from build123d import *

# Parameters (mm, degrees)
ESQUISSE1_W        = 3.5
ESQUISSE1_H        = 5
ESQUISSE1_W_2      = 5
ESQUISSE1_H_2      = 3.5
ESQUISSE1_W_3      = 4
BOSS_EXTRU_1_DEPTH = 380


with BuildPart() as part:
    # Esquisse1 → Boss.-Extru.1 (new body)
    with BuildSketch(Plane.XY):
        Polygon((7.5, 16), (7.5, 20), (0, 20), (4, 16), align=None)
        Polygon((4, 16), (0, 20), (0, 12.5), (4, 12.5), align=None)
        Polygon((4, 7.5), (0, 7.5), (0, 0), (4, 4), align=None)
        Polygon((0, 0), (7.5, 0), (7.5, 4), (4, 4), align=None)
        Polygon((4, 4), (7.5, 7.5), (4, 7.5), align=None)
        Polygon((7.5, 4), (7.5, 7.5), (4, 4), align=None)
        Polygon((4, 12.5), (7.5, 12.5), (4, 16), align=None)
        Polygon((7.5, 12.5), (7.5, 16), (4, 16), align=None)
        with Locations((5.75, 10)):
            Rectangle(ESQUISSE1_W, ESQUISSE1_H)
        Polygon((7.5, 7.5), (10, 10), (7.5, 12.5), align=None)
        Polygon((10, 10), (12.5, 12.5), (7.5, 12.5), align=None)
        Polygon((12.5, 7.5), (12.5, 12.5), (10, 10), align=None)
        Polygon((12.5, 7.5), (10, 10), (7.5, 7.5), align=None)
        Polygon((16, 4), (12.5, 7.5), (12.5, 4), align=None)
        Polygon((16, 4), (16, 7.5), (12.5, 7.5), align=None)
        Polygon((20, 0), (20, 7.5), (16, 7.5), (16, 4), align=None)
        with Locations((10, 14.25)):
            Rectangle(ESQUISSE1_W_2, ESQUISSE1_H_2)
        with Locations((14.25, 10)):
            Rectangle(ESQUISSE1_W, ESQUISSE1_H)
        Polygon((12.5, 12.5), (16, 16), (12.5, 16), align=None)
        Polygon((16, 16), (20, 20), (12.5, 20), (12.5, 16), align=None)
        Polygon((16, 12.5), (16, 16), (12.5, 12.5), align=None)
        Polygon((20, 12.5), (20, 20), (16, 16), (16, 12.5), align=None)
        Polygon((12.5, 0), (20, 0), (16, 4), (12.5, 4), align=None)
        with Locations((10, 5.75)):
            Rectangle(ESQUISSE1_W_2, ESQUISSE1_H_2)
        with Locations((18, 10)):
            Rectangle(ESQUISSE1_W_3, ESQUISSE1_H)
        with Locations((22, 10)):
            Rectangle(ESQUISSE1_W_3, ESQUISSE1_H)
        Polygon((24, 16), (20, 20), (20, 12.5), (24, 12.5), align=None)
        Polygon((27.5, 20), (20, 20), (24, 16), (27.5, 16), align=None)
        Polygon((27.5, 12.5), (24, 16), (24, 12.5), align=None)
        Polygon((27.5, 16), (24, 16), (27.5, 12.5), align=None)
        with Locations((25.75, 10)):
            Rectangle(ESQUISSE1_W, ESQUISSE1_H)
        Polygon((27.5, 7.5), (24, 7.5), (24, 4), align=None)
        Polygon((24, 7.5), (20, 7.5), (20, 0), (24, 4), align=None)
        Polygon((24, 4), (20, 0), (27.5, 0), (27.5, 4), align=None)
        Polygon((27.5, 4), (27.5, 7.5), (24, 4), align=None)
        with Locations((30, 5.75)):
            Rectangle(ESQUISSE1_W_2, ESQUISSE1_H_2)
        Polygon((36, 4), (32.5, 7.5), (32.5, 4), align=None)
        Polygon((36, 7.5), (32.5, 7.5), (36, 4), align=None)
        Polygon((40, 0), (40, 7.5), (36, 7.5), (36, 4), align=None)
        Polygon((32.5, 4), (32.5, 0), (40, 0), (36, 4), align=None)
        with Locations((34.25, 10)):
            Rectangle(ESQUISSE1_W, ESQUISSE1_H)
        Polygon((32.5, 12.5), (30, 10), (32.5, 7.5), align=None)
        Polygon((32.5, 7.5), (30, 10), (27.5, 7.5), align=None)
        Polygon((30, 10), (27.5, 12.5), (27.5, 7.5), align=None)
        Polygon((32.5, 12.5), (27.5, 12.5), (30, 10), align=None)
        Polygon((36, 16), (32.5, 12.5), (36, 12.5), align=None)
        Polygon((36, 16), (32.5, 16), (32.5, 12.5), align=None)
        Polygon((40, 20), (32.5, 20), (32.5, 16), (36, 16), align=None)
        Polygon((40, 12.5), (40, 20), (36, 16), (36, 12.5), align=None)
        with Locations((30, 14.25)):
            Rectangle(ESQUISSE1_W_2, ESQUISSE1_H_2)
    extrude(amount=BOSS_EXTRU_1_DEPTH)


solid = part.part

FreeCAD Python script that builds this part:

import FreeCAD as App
import Part
import Sketcher

V = App.Vector
Q = App.Units.Quantity


def add_polygon(sketch, points):
    """Adds a closed chain of lines whose ends are joined by coincident constraints."""
    first, n = sketch.GeometryCount, len(points)
    for a, b in zip(points, points[1:] + points[:1]):
        sketch.addGeometry(Part.LineSegment(App.Vector(*a, 0), App.Vector(*b, 0)), False)
    for i in range(n):
        sketch.addConstraint(Sketcher.Constraint("Coincident", first + i, 2, first + (i + 1) % n, 1))

doc = App.newDocument("Part")
body = doc.addObject("PartDesign::Body", "Body")

# Sketch on XY plane
sketch1 = body.newObject("Sketcher::SketchObject", "Sketch")
sketch1.AttachmentSupport = (doc.getObject("XY_Plane"), [""])
sketch1.MapMode = "FlatFace"
add_polygon(sketch1, [(7.5, 20), (0, 20), (0, 12.5), (4, 12.5), (4, 7.5), (0, 7.5), (0, 0), (7.5, 0), (7.5, 4), (12.5, 4), (12.5, 0), (27.5, 0), (27.5, 4), (32.5, 4), (32.5, 0), (40, 0), (40, 7.5), (36, 7.5), (36, 12.5), (40, 12.5), (40, 20), (32.5, 20), (32.5, 16), (27.5, 16), (27.5, 20), (12.5, 20), (12.5, 16), (7.5, 16)])  # lines 0-27
sketch1.addConstraint([
    Sketcher.Constraint("Horizontal", 0),
    Sketcher.Constraint("Vertical", 1),
    Sketcher.Constraint("Horizontal", 2),
    Sketcher.Constraint("Vertical", 3),
    Sketcher.Constraint("Horizontal", 4),
    Sketcher.Constraint("Vertical", 5),
    Sketcher.Constraint("Horizontal", 6),
    Sketcher.Constraint("Vertical", 7),
    Sketcher.Constraint("Horizontal", 8),
    Sketcher.Constraint("Vertical", 9),
    Sketcher.Constraint("Horizontal", 10),
    Sketcher.Constraint("Vertical", 11),
    Sketcher.Constraint("Horizontal", 12),
    Sketcher.Constraint("Vertical", 13),
    Sketcher.Constraint("Horizontal", 14),
    Sketcher.Constraint("Vertical", 15),
    Sketcher.Constraint("Horizontal", 16),
    Sketcher.Constraint("Vertical", 17),
    Sketcher.Constraint("Horizontal", 18),
    Sketcher.Constraint("Vertical", 19),
    Sketcher.Constraint("Horizontal", 20),
    Sketcher.Constraint("Vertical", 21),
    Sketcher.Constraint("Horizontal", 22),
    Sketcher.Constraint("Vertical", 23),
    Sketcher.Constraint("Horizontal", 24),
    Sketcher.Constraint("Vertical", 25),
    Sketcher.Constraint("Horizontal", 26),
    Sketcher.Constraint("Vertical", 27),
    Sketcher.Constraint("Coincident", 5, 2, -1, 1),
    Sketcher.Constraint("PointOnObject", 0, 2, -2),
    Sketcher.Constraint("PointOnObject", 9, 2, -1),
    Sketcher.Constraint("PointOnObject", 13, 2, -1),
    Sketcher.Constraint("Horizontal", 8, 2, 11, 2),
    Sketcher.Constraint("Horizontal", 4, 2, 15, 2),
    Sketcher.Constraint("Horizontal", 2, 2, 17, 2),
    Sketcher.Constraint("Horizontal", 0, 2, 19, 2),
    Sketcher.Constraint("Horizontal", 20, 2, 23, 2),
    Sketcher.Constraint("Horizontal", 22, 2, 25, 2),
    Sketcher.Constraint("Vertical", 15, 2, 18, 2),
    Sketcher.Constraint("Vertical", 13, 2, 20, 2),
    Sketcher.Constraint("Vertical", 11, 2, 22, 2),
    Sketcher.Constraint("Vertical", 9, 2, 24, 2),
    Sketcher.Constraint("Vertical", 7, 2, 26, 2),
    Sketcher.Constraint("Equal", 8, 12),
    Sketcher.Constraint("Equal", 6, 14),
    Sketcher.Constraint("Equal", 4, 16),
    Sketcher.Constraint("Equal", 20, 1),
    Sketcher.Constraint("Equal", 26, 3),
    Sketcher.Constraint("Equal", 1, 5),
    Sketcher.Constraint("Equal", 18, 7),
    Sketcher.Constraint("Equal", 13, 21),
    Sketcher.Constraint("DistanceX", 2, 1, 2, 2, Q("4 mm")),
    Sketcher.Constraint("DistanceX", 8, 1, 8, 2, Q("5 mm")),
    Sketcher.Constraint("DistanceX", 10, 1, 10, 2, Q("15 mm")),
    Sketcher.Constraint("DistanceX", 0, 2, 0, 1, Q("7.5 mm")),
])
pad1 = body.newObject("PartDesign::Pad", "Pad")
pad1.Profile = sketch1
pad1.Length = 380

doc.recompute()
